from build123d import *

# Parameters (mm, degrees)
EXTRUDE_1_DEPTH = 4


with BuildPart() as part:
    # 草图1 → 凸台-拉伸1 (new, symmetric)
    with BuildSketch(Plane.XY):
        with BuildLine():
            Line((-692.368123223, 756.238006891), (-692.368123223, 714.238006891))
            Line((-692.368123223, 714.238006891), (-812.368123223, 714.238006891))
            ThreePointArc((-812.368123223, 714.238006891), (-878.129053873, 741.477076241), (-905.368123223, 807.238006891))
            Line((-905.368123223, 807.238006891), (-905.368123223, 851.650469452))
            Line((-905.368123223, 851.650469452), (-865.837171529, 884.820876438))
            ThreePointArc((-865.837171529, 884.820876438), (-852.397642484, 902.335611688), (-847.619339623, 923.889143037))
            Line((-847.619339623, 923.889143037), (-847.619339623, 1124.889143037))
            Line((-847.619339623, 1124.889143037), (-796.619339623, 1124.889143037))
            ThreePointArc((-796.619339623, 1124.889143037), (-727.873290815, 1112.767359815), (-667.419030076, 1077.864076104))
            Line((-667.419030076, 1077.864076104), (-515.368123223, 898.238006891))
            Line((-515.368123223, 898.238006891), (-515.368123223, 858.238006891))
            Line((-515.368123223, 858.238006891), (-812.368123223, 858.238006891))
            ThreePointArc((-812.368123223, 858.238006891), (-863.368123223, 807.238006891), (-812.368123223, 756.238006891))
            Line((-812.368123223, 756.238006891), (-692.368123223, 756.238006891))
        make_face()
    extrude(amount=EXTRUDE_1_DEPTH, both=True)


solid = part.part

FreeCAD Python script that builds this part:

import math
import FreeCAD as App
import Part
import Sketcher

V = App.Vector
Q = App.Units.Quantity

doc = App.newDocument("Part")
params = doc.addObject("Spreadsheet::Sheet", "Params")
for row, (alias, value) in enumerate([
    ("sketch1_radius", "51 mm"),
    ("sketch1_radius2", "201 mm"),
    ("sketch1_radius3", "93 mm"),
    ("sketch1_width", "120 mm"),
    ("sketch1_width2", "297 mm"),
    ("pad1_length", "8 mm"),
], start=1):
    params.set(f"A{row}", alias)
    params.set(f"B{row}", "=" + value)
    params.setAlias(f"B{row}", alias)

body = doc.addObject("PartDesign::Body", "Body")

# Sketch on XY plane
sketch1 = body.newObject("Sketcher::SketchObject", "Sketch")
sketch1.AttachmentSupport = (doc.getObject("XY_Plane"), [""])
sketch1.MapMode = "FlatFace"
sketch1.addGeometry([
    Part.LineSegment(V(-692, 714, 0), V(-692, 756, 0)),  # 0
    Part.LineSegment(V(-692, 756, 0), V(-812, 756, 0)),  # 1
    Part.ArcOfCircle(Part.Circle(V(-812, 807, 0), V(0, 0, 1), 51), math.radians(90), math.radians(270)),  # 2
    Part.LineSegment(V(-812, 858, 0), V(-515, 858, 0)),  # 3
    Part.LineSegment(V(-515, 858, 0), V(-515, 898, 0)),  # 4
    Part.LineSegment(V(-515, 898, 0), V(-667, 1078, 0)),  # 5
    Part.ArcOfCircle(Part.Circle(V(-797, 924, 0), V(0, 0, 1), 201), math.radians(50), math.radians(90)),  # 6
    Part.LineSegment(V(-797, 1125, 0), V(-848, 1125, 0)),  # 7
    Part.LineSegment(V(-848, 1125, 0), V(-848, 924, 0)),  # 8
    Part.ArcOfCircle(Part.Circle(V(-899, 924, 0), V(0, 0, 1), 51), math.radians(-50), math.radians(0)),  # 9
    Part.LineSegment(V(-866, 885, 0), V(-905, 852, 0)),  # 10
    Part.LineSegment(V(-905, 852, 0), V(-905, 807, 0)),  # 11
    Part.ArcOfCircle(Part.Circle(V(-812, 807, 0), V(0, 0, 1), 93), math.radians(-180), math.radians(-90)),  # 12
    Part.LineSegment(V(-812, 714, 0), V(-692, 714, 0)),  # 13
], False)
sketch1.addConstraint([
    Sketcher.Constraint("Coincident", 0, 2, 1, 1),
    Sketcher.Constraint("Tangent", 1, 2, 2, 2),
    Sketcher.Constraint("Tangent", 2, 1, 3, 1),
    Sketcher.Constraint("Coincident", 3, 2, 4, 1),
    Sketcher.Constraint("Coincident", 4, 2, 5, 1),
    Sketcher.Constraint("Coincident", 5, 2, 6, 1),
    Sketcher.Constraint("Tangent", 6, 2, 7, 1),
    Sketcher.Constraint("Coincident", 7, 2, 8, 1),
    Sketcher.Constraint("Tangent", 8, 2, 9, 2),
    Sketcher.Constraint("Tangent", 9, 1, 10, 1),
    Sketcher.Constraint("Coincident", 10, 2, 11, 1),
    Sketcher.Constraint("Tangent", 11, 2, 12, 1),
    Sketcher.Constraint("Tangent", 12, 2, 13, 1),
    Sketcher.Constraint("Coincident", 13, 2, 0, 1),
    Sketcher.Constraint("Vertical", 0),
    Sketcher.Constraint("Horizontal", 1),
    Sketcher.Constraint("Horizontal", 3),
    Sketcher.Constraint("Vertical", 4),
    Sketcher.Constraint("Horizontal", 7),
    Sketcher.Constraint("Vertical", 8),
    Sketcher.Constraint("Vertical", 11),
    Sketcher.Constraint("Horizontal", 13),
    Sketcher.Constraint("Coincident", 12, 3, 2, 3),
    Sketcher.Constraint("Equal", 2, 9),
    Sketcher.Constraint("Horizontal", 6, 3, 9, 3),
    Sketcher.Constraint("Radius", 2, Q("51 mm")),
    Sketcher.Constraint("Radius", 6, Q("201 mm")),
    Sketcher.Constraint("Radius", 12, Q("93 mm")),
    Sketcher.Constraint("DistanceX", 1, 2, 1, 1, Q("120 mm")),
    Sketcher.Constraint("DistanceX", 3, 1, 3, 2, Q("297 mm")),
    Sketcher.Constraint("DistanceX", 7, 2, 7, 1, Q("51 mm")),
    Sketcher.Constraint("DistanceY", 4, 1, 4, 2, Q("40 mm")),
    Sketcher.Constraint("Angle", 10, Q("-140 deg")),
    Sketcher.Constraint("DistanceY", 11, 2, 11, 1, Q("44.412463 mm")),
    Sketcher.Constraint("DistanceX", 6, 3, -1, 1, Q("796.61934 mm")),
    Sketcher.Constraint("DistanceX", 5, 2, -1, 1, Q("667.41903 mm")),
    Sketcher.Constraint("DistanceY", -1, 1, 10, 2, Q("851.650469 mm")),
    Sketcher.Constraint("DistanceY", 4, 2, 5, 2, Q("179.626069 mm")),
])
sketch1.setExpression("Constraints[25]", "Params.sketch1_radius")
sketch1.setExpression("Constraints[26]", "Params.sketch1_radius2")
sketch1.setExpression("Constraints[27]", "Params.sketch1_radius3")
sketch1.setExpression("Constraints[28]", "Params.sketch1_width")
sketch1.setExpression("Constraints[29]", "Params.sketch1_width2")
pad1 = body.newObject("PartDesign::Pad", "Pad")
pad1.Profile = sketch1
pad1.setExpression("Length", "Params.pad1_length")
pad1.Midplane = True

doc.recompute()
